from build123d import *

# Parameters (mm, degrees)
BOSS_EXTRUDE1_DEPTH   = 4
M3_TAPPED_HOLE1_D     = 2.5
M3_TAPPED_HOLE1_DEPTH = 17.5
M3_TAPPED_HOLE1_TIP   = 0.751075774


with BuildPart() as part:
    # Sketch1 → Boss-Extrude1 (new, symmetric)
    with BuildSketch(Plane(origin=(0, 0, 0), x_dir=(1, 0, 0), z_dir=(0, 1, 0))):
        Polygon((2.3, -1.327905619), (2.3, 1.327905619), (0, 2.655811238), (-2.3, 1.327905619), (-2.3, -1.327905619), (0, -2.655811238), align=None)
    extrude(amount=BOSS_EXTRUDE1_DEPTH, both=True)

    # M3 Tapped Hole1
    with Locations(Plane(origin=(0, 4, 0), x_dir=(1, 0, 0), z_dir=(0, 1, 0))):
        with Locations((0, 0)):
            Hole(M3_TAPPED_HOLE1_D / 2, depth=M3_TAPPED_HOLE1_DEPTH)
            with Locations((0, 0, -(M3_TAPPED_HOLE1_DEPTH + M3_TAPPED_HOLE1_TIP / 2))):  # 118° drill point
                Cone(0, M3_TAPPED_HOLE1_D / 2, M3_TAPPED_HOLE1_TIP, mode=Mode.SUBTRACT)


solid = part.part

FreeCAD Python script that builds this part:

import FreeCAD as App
import Part
import Sketcher

V = App.Vector
Q = App.Units.Quantity


def add_polygon(sketch, points):
    """Adds a closed chain of lines whose ends are joined by coincident constraints."""
    first, n = sketch.GeometryCount, len(points)
    for a, b in zip(points, points[1:] + points[:1]):
        sketch.addGeometry(Part.LineSegment(App.Vector(*a, 0), App.Vector(*b, 0)), False)
    for i in range(n):
        sketch.addConstraint(Sketcher.Constraint("Coincident", first + i, 2, first + (i + 1) % n, 1))

doc = App.newDocument("Part")
body = doc.addObject("PartDesign::Body", "Body")

# Sketch on XZ plane
sketch1 = body.newObject("Sketcher::SketchObject", "Sketch")
sketch1.AttachmentSupport = (doc.getObject("XZ_Plane"), [""])
sketch1.MapMode = "FlatFace"
add_polygon(sketch1, [(2.3, 1.3), (2.3, -1.3), (0, -2.7), (-2.3, -1.3), (-2.3, 1.3), (0, 2.7)])  # lines 0-5
sketch1.addConstraint([
    Sketcher.Constraint("Vertical", 0),
    Sketcher.Constraint("Vertical", 3),
    Sketcher.Constraint("Symmetric", 0, 2, 3, 2, -1, 1),
    Sketcher.Constraint("Symmetric", 1, 2, 4, 2, -1, 1),
    Sketcher.Constraint("PointOnObject", 1, 2, -2),
    Sketcher.Constraint("Parallel", 2, 5),
    Sketcher.Constraint("Horizontal", 0, 2, 2, 2),
    Sketcher.Constraint("Angle", 1, Q("-150 deg")),
    Sketcher.Constraint("DistanceX", -1, 1, 0, 2, 2.3),
    Sketcher.Constraint("DistanceY", 0, 2, 0, 1, 2.655811),
])
pad1 = body.newObject("PartDesign::Pad", "Pad")
pad1.Profile = sketch1
pad1.Length = 8
pad1.Midplane = True

# Sketch on XZ plane
sketch2 = body.newObject("Sketcher::SketchObject", "Sketch001")
sketch2.AttachmentSupport = (doc.getObject("XZ_Plane"), [""])
sketch2.MapMode = "FlatFace"
sketch2.AttachmentOffset = App.Placement(V(0, 0, -4), App.Rotation())
sketch2.addGeometry(Part.Circle(V(0, 0, 0), V(0, 0, 1), 1.2), False)
sketch2.addConstraint([
    Sketcher.Constraint("Coincident", 0, 3, -1, 1),
    Sketcher.Constraint("Diameter", 0, 2.5),
])
doc.recompute()
hole = body.newObject("PartDesign::Hole", "Hole")
hole.Profile = sketch2
hole.ThreadType = "None"
hole.Diameter = 2.5
hole.DepthType = "Dimension"
hole.Depth = 17.5
hole.DrillPoint = "Angled"
hole.DrillPointAngle = 118
hole.Reversed = True

doc.recompute()
